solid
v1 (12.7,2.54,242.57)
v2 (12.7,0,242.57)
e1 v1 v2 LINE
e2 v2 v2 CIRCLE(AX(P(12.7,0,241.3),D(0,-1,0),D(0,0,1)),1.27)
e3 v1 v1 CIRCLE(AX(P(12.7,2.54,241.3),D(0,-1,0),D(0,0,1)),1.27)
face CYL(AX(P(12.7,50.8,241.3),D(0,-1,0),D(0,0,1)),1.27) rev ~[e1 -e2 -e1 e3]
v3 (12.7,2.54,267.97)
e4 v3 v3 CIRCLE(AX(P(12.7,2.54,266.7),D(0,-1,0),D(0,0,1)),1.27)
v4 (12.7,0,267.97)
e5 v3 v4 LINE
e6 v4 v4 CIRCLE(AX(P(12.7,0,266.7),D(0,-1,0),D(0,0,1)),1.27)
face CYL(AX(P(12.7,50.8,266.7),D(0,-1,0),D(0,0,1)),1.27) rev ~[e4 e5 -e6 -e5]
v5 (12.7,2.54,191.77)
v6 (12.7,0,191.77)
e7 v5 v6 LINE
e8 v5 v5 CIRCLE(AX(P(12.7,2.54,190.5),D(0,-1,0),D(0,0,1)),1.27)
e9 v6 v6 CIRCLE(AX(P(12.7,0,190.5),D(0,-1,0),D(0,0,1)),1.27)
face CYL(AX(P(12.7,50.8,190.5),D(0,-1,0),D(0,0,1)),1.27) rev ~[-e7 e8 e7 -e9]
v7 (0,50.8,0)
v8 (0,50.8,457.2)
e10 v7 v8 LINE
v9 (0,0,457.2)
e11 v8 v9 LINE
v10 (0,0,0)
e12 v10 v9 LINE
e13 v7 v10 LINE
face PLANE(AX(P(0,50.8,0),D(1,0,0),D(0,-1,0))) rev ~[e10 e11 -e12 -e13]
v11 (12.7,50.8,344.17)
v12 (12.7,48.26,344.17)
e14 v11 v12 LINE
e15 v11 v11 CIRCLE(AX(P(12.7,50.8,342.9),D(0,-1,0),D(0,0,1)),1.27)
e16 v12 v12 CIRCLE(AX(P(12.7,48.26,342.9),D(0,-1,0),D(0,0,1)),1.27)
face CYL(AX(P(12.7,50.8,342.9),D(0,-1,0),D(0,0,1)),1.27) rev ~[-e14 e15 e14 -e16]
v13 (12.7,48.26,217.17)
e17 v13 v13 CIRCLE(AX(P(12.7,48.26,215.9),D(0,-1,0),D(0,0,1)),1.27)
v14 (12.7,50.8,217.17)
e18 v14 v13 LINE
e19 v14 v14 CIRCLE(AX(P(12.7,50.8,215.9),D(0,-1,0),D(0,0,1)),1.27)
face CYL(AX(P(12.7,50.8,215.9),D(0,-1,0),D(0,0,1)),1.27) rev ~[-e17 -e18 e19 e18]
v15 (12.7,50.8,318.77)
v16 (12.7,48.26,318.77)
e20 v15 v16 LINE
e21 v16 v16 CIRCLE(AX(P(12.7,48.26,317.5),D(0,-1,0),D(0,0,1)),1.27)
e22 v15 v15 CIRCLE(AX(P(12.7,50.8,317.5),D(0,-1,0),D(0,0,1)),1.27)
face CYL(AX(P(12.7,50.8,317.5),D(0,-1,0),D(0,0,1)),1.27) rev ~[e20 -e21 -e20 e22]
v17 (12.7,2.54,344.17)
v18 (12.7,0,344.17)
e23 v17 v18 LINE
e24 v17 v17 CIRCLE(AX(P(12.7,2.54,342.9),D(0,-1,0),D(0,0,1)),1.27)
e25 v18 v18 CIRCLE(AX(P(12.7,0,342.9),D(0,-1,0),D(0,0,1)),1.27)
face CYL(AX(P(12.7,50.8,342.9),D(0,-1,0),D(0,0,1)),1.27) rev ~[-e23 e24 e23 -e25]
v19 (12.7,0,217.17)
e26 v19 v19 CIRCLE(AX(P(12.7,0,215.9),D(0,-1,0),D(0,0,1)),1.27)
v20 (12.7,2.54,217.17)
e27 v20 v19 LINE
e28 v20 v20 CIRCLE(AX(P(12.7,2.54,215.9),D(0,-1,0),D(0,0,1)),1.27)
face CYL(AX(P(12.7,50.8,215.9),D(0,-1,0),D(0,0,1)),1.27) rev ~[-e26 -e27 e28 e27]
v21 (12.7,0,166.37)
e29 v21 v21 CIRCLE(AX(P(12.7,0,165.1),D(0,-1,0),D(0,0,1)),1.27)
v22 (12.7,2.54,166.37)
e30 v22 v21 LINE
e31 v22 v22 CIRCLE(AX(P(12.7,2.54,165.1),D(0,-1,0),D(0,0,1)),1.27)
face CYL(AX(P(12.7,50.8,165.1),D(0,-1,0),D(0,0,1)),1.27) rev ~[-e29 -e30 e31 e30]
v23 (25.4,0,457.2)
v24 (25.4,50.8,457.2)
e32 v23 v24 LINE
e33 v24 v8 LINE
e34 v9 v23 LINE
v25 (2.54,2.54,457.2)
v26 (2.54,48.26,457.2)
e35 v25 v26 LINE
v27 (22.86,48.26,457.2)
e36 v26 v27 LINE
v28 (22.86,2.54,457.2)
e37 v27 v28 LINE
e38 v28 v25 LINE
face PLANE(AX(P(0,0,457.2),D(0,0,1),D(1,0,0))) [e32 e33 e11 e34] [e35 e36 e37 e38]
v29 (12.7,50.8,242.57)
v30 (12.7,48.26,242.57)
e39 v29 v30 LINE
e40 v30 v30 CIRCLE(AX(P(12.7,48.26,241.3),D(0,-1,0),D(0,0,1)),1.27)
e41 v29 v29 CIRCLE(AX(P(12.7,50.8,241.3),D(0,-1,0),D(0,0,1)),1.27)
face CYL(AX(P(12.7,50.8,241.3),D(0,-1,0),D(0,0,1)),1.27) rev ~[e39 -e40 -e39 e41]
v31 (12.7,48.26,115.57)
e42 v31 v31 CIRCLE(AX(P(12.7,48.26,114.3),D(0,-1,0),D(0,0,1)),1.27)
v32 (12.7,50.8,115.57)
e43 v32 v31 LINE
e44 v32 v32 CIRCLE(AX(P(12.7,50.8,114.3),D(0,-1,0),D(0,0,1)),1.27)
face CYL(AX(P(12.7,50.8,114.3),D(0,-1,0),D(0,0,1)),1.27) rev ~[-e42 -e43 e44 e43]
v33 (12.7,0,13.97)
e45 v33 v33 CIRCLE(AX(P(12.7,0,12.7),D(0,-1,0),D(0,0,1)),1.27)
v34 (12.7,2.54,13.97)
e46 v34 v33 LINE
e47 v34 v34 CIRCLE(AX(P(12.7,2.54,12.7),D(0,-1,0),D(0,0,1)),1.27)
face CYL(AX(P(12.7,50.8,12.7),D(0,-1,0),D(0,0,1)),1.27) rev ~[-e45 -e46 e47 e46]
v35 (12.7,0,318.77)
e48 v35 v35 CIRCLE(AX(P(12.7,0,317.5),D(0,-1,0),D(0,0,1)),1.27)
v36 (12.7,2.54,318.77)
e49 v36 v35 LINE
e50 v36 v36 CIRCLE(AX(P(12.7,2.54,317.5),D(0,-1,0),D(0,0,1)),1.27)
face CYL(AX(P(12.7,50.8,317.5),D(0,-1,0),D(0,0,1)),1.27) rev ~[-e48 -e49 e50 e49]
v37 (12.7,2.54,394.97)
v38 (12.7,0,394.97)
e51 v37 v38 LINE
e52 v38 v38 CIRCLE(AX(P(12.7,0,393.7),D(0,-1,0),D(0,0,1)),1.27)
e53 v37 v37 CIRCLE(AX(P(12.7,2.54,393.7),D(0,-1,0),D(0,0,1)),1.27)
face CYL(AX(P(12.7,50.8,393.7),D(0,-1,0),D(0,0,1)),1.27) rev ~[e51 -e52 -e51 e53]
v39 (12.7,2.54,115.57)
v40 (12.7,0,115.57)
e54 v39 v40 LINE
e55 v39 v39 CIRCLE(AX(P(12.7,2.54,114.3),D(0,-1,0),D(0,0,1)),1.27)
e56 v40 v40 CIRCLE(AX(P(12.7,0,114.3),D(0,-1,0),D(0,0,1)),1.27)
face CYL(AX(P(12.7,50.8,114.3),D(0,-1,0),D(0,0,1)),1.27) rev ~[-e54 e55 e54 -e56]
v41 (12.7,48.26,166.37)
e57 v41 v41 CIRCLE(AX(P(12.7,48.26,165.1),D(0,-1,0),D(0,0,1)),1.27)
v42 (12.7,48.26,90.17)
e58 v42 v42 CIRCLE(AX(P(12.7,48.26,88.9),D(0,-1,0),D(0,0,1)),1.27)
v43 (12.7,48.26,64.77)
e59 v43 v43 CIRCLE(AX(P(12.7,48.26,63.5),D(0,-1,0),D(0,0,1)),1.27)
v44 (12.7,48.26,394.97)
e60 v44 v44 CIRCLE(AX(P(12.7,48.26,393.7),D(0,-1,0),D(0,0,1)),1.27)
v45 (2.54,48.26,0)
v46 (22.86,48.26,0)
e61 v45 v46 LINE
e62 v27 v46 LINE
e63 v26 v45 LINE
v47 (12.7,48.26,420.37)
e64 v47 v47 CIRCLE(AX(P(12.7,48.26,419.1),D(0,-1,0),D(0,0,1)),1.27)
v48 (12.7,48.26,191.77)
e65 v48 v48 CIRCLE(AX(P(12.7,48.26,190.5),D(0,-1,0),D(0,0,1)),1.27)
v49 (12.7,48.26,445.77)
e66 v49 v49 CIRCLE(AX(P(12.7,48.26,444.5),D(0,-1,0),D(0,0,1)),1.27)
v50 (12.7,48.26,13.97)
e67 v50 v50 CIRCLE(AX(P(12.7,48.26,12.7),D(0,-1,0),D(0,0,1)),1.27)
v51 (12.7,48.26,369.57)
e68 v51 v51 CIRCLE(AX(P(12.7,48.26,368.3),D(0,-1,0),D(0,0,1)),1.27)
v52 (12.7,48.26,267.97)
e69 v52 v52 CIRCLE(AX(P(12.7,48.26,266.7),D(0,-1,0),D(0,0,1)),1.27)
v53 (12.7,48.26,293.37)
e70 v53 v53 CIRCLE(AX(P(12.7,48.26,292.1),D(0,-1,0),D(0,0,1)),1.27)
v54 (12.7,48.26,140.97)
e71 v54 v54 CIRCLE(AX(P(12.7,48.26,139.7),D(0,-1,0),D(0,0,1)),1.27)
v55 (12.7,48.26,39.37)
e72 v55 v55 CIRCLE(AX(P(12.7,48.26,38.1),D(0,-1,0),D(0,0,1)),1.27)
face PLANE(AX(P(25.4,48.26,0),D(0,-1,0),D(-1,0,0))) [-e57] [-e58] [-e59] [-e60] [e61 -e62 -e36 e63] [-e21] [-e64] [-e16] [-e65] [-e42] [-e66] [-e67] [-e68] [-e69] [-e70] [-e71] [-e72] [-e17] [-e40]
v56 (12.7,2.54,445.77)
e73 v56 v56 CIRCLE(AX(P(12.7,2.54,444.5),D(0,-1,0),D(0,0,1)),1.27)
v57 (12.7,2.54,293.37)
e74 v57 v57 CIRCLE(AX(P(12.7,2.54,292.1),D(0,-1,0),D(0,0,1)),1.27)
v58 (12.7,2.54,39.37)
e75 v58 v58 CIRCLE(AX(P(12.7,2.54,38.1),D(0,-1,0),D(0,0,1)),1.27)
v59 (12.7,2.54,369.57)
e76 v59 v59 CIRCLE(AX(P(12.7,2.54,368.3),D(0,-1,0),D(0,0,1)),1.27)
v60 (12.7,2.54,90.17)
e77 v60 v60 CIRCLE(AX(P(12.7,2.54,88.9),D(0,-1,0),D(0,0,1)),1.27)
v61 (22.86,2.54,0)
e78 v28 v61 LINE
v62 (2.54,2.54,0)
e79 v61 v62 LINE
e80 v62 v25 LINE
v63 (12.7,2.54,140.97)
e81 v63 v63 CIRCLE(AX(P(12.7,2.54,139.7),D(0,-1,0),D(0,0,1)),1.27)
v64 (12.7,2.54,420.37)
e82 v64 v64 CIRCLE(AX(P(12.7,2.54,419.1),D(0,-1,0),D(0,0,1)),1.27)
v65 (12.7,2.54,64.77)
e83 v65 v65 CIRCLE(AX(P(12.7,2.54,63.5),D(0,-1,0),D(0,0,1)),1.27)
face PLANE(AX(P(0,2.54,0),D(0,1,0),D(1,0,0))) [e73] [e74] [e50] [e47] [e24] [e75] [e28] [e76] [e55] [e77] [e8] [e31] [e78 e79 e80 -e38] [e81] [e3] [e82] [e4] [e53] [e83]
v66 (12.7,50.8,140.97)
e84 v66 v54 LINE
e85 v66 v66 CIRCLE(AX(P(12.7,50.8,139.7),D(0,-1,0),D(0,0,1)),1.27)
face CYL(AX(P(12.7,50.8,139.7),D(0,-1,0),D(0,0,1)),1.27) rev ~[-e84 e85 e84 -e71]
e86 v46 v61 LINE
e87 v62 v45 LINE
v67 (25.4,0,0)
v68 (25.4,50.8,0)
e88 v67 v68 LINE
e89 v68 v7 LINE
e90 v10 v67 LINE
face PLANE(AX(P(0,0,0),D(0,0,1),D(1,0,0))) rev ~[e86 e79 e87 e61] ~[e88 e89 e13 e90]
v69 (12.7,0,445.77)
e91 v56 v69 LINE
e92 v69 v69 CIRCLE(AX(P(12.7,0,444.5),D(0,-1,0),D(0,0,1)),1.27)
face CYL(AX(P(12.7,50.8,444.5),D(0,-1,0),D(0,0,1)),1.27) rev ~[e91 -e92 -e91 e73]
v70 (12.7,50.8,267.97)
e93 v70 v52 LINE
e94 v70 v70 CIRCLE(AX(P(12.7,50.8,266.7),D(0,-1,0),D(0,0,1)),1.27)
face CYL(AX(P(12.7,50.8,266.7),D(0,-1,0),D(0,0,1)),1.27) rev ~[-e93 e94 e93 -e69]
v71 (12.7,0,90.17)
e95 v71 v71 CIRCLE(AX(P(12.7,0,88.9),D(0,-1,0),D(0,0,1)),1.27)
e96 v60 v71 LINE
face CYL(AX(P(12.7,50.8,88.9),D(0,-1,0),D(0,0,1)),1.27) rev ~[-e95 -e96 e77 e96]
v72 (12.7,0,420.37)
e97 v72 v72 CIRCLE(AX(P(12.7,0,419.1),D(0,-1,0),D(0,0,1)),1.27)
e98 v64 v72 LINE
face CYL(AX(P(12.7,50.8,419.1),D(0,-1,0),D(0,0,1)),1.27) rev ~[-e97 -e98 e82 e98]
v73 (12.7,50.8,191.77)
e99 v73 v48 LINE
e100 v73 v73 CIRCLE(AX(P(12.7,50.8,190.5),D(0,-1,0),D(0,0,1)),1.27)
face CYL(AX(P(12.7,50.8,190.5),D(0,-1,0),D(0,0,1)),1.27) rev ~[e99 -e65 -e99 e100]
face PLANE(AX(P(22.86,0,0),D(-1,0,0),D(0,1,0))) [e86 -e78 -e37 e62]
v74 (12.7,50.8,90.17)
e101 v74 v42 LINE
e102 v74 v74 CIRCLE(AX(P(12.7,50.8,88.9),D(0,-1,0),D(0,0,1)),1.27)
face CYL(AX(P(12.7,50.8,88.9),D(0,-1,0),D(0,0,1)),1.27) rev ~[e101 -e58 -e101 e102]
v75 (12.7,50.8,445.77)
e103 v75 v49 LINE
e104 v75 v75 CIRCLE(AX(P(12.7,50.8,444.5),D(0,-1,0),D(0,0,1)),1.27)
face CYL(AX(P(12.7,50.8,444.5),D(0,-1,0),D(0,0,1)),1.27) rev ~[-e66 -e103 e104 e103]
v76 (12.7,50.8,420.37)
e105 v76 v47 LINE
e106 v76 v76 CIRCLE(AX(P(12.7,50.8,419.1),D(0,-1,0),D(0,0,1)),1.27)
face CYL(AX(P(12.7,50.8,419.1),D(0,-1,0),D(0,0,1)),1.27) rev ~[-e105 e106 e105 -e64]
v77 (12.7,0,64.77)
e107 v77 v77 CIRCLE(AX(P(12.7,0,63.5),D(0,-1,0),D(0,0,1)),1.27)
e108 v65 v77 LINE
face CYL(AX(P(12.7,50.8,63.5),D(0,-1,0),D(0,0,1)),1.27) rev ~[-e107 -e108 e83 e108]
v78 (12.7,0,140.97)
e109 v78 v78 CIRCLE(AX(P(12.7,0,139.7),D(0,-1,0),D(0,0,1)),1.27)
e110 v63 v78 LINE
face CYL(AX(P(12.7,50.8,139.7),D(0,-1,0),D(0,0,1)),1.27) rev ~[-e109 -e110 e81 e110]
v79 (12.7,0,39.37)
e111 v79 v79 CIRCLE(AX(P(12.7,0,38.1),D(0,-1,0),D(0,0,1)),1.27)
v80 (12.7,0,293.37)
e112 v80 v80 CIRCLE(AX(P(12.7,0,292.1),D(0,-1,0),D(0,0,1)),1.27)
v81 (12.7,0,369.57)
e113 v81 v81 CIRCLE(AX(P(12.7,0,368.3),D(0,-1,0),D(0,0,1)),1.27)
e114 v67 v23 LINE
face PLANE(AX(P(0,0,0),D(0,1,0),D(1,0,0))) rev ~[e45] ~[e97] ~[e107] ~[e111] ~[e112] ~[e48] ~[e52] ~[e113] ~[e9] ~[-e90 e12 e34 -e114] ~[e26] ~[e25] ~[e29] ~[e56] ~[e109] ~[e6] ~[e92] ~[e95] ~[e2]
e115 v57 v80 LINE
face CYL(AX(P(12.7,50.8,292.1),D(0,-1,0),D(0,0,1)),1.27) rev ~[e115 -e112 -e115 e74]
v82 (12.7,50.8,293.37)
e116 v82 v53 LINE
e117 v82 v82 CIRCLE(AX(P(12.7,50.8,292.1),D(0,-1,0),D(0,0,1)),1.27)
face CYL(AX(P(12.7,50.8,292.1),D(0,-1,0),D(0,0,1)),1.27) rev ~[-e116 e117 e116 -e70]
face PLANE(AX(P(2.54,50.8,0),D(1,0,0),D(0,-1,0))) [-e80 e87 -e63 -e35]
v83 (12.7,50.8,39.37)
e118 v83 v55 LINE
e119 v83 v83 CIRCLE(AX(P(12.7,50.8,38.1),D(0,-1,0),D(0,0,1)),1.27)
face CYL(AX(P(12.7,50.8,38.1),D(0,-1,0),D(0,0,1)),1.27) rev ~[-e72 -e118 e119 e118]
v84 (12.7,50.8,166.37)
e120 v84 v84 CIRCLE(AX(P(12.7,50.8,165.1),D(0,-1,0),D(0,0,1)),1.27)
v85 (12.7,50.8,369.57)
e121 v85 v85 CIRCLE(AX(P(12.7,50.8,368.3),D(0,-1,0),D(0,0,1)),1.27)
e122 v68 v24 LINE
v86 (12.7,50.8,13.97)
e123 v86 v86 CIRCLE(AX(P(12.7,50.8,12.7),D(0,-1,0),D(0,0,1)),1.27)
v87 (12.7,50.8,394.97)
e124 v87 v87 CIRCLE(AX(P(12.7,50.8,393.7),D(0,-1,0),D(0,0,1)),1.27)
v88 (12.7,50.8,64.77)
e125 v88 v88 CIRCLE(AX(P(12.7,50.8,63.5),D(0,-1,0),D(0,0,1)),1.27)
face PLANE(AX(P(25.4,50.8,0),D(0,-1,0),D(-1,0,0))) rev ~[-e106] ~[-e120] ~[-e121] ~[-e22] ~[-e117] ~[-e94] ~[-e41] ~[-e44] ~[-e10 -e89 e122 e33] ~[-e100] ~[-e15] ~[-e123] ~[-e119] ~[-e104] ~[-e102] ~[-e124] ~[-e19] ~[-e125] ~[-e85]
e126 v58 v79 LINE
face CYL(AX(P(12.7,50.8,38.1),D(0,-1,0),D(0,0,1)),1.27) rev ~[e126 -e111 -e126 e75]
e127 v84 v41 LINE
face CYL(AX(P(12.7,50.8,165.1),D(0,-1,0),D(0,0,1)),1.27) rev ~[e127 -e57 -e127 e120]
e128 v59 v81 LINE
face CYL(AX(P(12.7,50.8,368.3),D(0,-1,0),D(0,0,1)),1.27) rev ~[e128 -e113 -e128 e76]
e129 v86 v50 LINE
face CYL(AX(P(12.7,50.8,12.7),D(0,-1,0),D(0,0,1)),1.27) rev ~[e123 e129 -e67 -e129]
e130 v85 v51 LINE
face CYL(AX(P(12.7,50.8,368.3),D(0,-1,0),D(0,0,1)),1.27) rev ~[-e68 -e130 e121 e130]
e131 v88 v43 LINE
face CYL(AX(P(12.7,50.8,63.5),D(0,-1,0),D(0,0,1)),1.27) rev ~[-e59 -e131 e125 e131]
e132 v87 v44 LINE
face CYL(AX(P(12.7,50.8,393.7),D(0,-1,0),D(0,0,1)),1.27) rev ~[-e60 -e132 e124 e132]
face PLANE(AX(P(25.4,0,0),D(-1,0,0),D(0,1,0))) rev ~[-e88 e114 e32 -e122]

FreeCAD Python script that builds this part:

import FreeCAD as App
import Part
import Sketcher
from FreeCAD import Vector
Q = App.Units.Quantity


def faces_at(feature, points):
    """Names of the faces that lie closest to the given points."""
    faces = feature.Shape.Faces
    near = lambda p: min(range(len(faces)), key=lambda i: faces[i].distToShape(Part.Vertex(*p))[0])
    return sorted({f"Face{near(p) + 1}" for p in points})

doc = App.newDocument("Part")
body = doc.addObject("PartDesign::Body", "Body")

sketch1 = body.newObject("Sketcher::SketchObject", "Sketch")
sketch1.AttachmentSupport = (doc.getObject("XY_Plane"), [""])
sketch1.MapMode = "FlatFace"
sketch1.addGeometry([
    Part.LineSegment(Vector(0, 51, 0), Vector(0, 0, 0)),
    Part.LineSegment(Vector(0, 0, 0), Vector(25, 0, 0)),
    Part.LineSegment(Vector(25, 0, 0), Vector(25, 51, 0)),
    Part.LineSegment(Vector(25, 51, 0), Vector(0, 51, 0)),
], False)
sketch1.addConstraint([
    Sketcher.Constraint("Coincident", 0, 2, 1, 1),
    Sketcher.Constraint("Coincident", 1, 2, 2, 1),
    Sketcher.Constraint("Coincident", 2, 2, 3, 1),
    Sketcher.Constraint("Coincident", 3, 2, 0, 1),
    Sketcher.Constraint("Vertical", 0),
    Sketcher.Constraint("Horizontal", 1),
    Sketcher.Constraint("Vertical", 2),
    Sketcher.Constraint("Horizontal", 3),
    Sketcher.Constraint("Coincident", 0, 2, -1, 1),
    Sketcher.Constraint("DistanceX", 1, 1, 1, 2, Q("1 in")),
    Sketcher.Constraint("DistanceY", 0, 2, 0, 1, Q("2 in")),
])
pad1 = body.newObject("PartDesign::Pad", "Pad")
pad1.Profile = sketch1
pad1.Length = Q("18 in")
doc.recompute()

thickness = body.newObject("PartDesign::Thickness", "Thickness")
thickness.Base = (pad1, faces_at(pad1, [(8.467, 33.867, 0), (8.467, 33.867, 457.2)]))
thickness.Value = Q("0.1 in")
thickness.Reversed = True
thickness.Join = "Intersection"

sketch2 = body.newObject("Sketcher::SketchObject", "Sketch001")
sketch2.AttachmentSupport = (doc.getObject("XZ_Plane"), [""])
sketch2.MapMode = "FlatFace"
sketch2.AttachmentOffset = App.Placement(Vector(0, 0, -2 * 25.4), App.Rotation())
sketch2.addGeometry([
    Part.Circle(Vector(12.7, 12.7, 0), Vector(0, 0, 1), 1.3),
    Part.Circle(Vector(12.7, 38.1, 0), Vector(0, 0, 1), 1.3),
    Part.Circle(Vector(12.7, 63.5, 0), Vector(0, 0, 1), 1.3),
    Part.Circle(Vector(12.7, 88.9, 0), Vector(0, 0, 1), 1.3),
    Part.Circle(Vector(12.7, 114.3, 0), Vector(0, 0, 1), 1.3),
    Part.Circle(Vector(12.7, 139.7, 0), Vector(0, 0, 1), 1.3),
    Part.Circle(Vector(12.7, 165.1, 0), Vector(0, 0, 1), 1.3),
    Part.Circle(Vector(12.7, 190.5, 0), Vector(0, 0, 1), 1.3),
    Part.Circle(Vector(12.7, 215.9, 0), Vector(0, 0, 1), 1.3),
    Part.Circle(Vector(12.7, 241.3, 0), Vector(0, 0, 1), 1.3),
    Part.Circle(Vector(12.7, 266.7, 0), Vector(0, 0, 1), 1.3),
    Part.Circle(Vector(12.7, 292.1, 0), Vector(0, 0, 1), 1.3),
    Part.Circle(Vector(12.7, 317.5, 0), Vector(0, 0, 1), 1.3),
    Part.Circle(Vector(12.7, 342.9, 0), Vector(0, 0, 1), 1.3),
    Part.Circle(Vector(12.7, 368.3, 0), Vector(0, 0, 1), 1.3),
    Part.Circle(Vector(12.7, 393.7, 0), Vector(0, 0, 1), 1.3),
    Part.Circle(Vector(12.7, 419.1, 0), Vector(0, 0, 1), 1.3),
    Part.Circle(Vector(12.7, 444.5, 0), Vector(0, 0, 1), 1.3),
    Part.Circle(Vector(12.7, 469.9, 0), Vector(0, 0, 1), 1.3),
    Part.Circle(Vector(12.7, 495.3, 0), Vector(0, 0, 1), 1.3),
    Part.Circle(Vector(12.7, 520.7, 0), Vector(0, 0, 1), 1.3),
    Part.Circle(Vector(12.7, 546.1, 0), Vector(0, 0, 1), 1.3),
    Part.Circle(Vector(12.7, 571.5, 0), Vector(0, 0, 1), 1.3),
    Part.Circle(Vector(12.7, 596.9, 0), Vector(0, 0, 1), 1.3),
    Part.Circle(Vector(12.7, 622.3, 0), Vector(0, 0, 1), 1.3),
    Part.Circle(Vector(12.7, 647.7, 0), Vector(0, 0, 1), 1.3),
    Part.Circle(Vector(12.7, 673.1, 0), Vector(0, 0, 1), 1.3),
    Part.Circle(Vector(12.7, 698.5, 0), Vector(0, 0, 1), 1.3),
    Part.Circle(Vector(12.7, 723.9, 0), Vector(0, 0, 1), 1.3),
    Part.Circle(Vector(12.7, 749.3, 0), Vector(0, 0, 1), 1.3),
    Part.Circle(Vector(12.7, 774.7, 0), Vector(0, 0, 1), 1.3),
], False)
sketch2.addConstraint([
    Sketcher.Constraint("Equal", 0, 1),
    Sketcher.Constraint("Equal", 1, 2),
    Sketcher.Constraint("Equal", 2, 3),
    Sketcher.Constraint("Equal", 3, 4),
    Sketcher.Constraint("Equal", 4, 5),
    Sketcher.Constraint("Equal", 5, 6),
    Sketcher.Constraint("Equal", 6, 7),
    Sketcher.Constraint("Equal", 7, 8),
    Sketcher.Constraint("Equal", 8, 9),
    Sketcher.Constraint("Equal", 9, 10),
    Sketcher.Constraint("Equal", 10, 11),
    Sketcher.Constraint("Equal", 11, 12),
    Sketcher.Constraint("Equal", 12, 13),
    Sketcher.Constraint("Equal", 13, 14),
    Sketcher.Constraint("Equal", 14, 15),
    Sketcher.Constraint("Equal", 15, 16),
    Sketcher.Constraint("Equal", 16, 17),
    Sketcher.Constraint("Equal", 17, 18),
    Sketcher.Constraint("Equal", 18, 19),
    Sketcher.Constraint("Equal", 19, 20),
    Sketcher.Constraint("Equal", 20, 21),
    Sketcher.Constraint("Equal", 21, 22),
    Sketcher.Constraint("Equal", 22, 23),
    Sketcher.Constraint("Equal", 23, 24),
    Sketcher.Constraint("Equal", 24, 25),
    Sketcher.Constraint("Equal", 25, 26),
    Sketcher.Constraint("Equal", 26, 27),
    Sketcher.Constraint("Equal", 27, 28),
    Sketcher.Constraint("Equal", 28, 29),
    Sketcher.Constraint("Equal", 29, 30),
    Sketcher.Constraint("Vertical", 0, 3, 1, 3),
    Sketcher.Constraint("Vertical", 1, 3, 2, 3),
    Sketcher.Constraint("Vertical", 2, 3, 3, 3),
    Sketcher.Constraint("Vertical", 3, 3, 4, 3),
    Sketcher.Constraint("Vertical", 4, 3, 5, 3),
    Sketcher.Constraint("Vertical", 5, 3, 6, 3),
    Sketcher.Constraint("Vertical", 6, 3, 7, 3),
    Sketcher.Constraint("Vertical", 7, 3, 8, 3),
    Sketcher.Constraint("Vertical", 8, 3, 9, 3),
    Sketcher.Constraint("Vertical", 9, 3, 10, 3),
    Sketcher.Constraint("Vertical", 10, 3, 11, 3),
    Sketcher.Constraint("Vertical", 11, 3, 12, 3),
    Sketcher.Constraint("Vertical", 12, 3, 13, 3),
    Sketcher.Constraint("Vertical", 13, 3, 14, 3),
    Sketcher.Constraint("Vertical", 14, 3, 15, 3),
    Sketcher.Constraint("Vertical", 15, 3, 16, 3),
    Sketcher.Constraint("Vertical", 16, 3, 17, 3),
    Sketcher.Constraint("Vertical", 17, 3, 18, 3),
    Sketcher.Constraint("Vertical", 18, 3, 19, 3),
    Sketcher.Constraint("Vertical", 19, 3, 20, 3),
    Sketcher.Constraint("Vertical", 20, 3, 21, 3),
    Sketcher.Constraint("Vertical", 21, 3, 22, 3),
    Sketcher.Constraint("Vertical", 22, 3, 23, 3),
    Sketcher.Constraint("Vertical", 23, 3, 24, 3),
    Sketcher.Constraint("Vertical", 24, 3, 25, 3),
    Sketcher.Constraint("Vertical", 25, 3, 26, 3),
    Sketcher.Constraint("Vertical", 26, 3, 27, 3),
    Sketcher.Constraint("Vertical", 27, 3, 28, 3),
    Sketcher.Constraint("Vertical", 28, 3, 29, 3),
    Sketcher.Constraint("Vertical", 29, 3, 30, 3),
    Sketcher.Constraint("Diameter", 0, Q("0.1 in")),
    Sketcher.Constraint("DistanceY", 0, 3, 1, 3, Q("1 in")),
    Sketcher.Constraint("DistanceY", 1, 3, 2, 3, Q("1 in")),
    Sketcher.Constraint("DistanceY", 2, 3, 3, 3, Q("1 in")),
    Sketcher.Constraint("DistanceY", 3, 3, 4, 3, Q("1 in")),
    Sketcher.Constraint("DistanceY", 4, 3, 5, 3, Q("1 in")),
    Sketcher.Constraint("DistanceY", 5, 3, 6, 3, Q("1 in")),
    Sketcher.Constraint("DistanceY", 6, 3, 7, 3, Q("1 in")),
    Sketcher.Constraint("DistanceY", 7, 3, 8, 3, Q("1 in")),
    Sketcher.Constraint("DistanceY", 8, 3, 9, 3, Q("1 in")),
    Sketcher.Constraint("DistanceY", 9, 3, 10, 3, Q("1 in")),
    Sketcher.Constraint("DistanceY", 10, 3, 11, 3, Q("1 in")),
    Sketcher.Constraint("DistanceY", 11, 3, 12, 3, Q("1 in")),
    Sketcher.Constraint("DistanceY", 12, 3, 13, 3, Q("1 in")),
    Sketcher.Constraint("DistanceY", 13, 3, 14, 3, Q("1 in")),
    Sketcher.Constraint("DistanceY", 14, 3, 15, 3, Q("1 in")),
    Sketcher.Constraint("DistanceY", 15, 3, 16, 3, Q("1 in")),
    Sketcher.Constraint("DistanceY", 16, 3, 17, 3, Q("1 in")),
    Sketcher.Constraint("DistanceY", 17, 3, 18, 3, Q("1 in")),
    Sketcher.Constraint("DistanceY", 18, 3, 19, 3, Q("1 in")),
    Sketcher.Constraint("DistanceY", 19, 3, 20, 3, Q("1 in")),
    Sketcher.Constraint("DistanceY", 20, 3, 21, 3, Q("1 in")),
    Sketcher.Constraint("DistanceY", 21, 3, 22, 3, Q("1 in")),
    Sketcher.Constraint("DistanceY", 22, 3, 23, 3, Q("1 in")),
    Sketcher.Constraint("DistanceY", 23, 3, 24, 3, Q("1 in")),
    Sketcher.Constraint("DistanceY", 24, 3, 25, 3, Q("1 in")),
    Sketcher.Constraint("DistanceY", 25, 3, 26, 3, Q("1 in")),
    Sketcher.Constraint("DistanceY", 26, 3, 27, 3, Q("1 in")),
    Sketcher.Constraint("DistanceY", 27, 3, 28, 3, Q("1 in")),
    Sketcher.Constraint("DistanceY", 28, 3, 29, 3, Q("1 in")),
    Sketcher.Constraint("DistanceY", 29, 3, 30, 3, Q("1 in")),
    Sketcher.Constraint("DistanceX", -1, 1, 0, 3, Q("0.5 in")),
    Sketcher.Constraint("DistanceY", -1, 1, 0, 3, Q("0.5 in")),
])
doc.recompute()
hole = body.newObject("PartDesign::Hole", "Hole")
hole.Profile = sketch2
hole.ThreadType = "None"
hole.Diameter = Q("0.1 in")
hole.DepthType = "Dimension"
hole.Depth = Q("2 in")
hole.DrillPoint = "Angled"
hole.DrillPointAngle = 118
hole.Reversed = True

doc.recompute()
